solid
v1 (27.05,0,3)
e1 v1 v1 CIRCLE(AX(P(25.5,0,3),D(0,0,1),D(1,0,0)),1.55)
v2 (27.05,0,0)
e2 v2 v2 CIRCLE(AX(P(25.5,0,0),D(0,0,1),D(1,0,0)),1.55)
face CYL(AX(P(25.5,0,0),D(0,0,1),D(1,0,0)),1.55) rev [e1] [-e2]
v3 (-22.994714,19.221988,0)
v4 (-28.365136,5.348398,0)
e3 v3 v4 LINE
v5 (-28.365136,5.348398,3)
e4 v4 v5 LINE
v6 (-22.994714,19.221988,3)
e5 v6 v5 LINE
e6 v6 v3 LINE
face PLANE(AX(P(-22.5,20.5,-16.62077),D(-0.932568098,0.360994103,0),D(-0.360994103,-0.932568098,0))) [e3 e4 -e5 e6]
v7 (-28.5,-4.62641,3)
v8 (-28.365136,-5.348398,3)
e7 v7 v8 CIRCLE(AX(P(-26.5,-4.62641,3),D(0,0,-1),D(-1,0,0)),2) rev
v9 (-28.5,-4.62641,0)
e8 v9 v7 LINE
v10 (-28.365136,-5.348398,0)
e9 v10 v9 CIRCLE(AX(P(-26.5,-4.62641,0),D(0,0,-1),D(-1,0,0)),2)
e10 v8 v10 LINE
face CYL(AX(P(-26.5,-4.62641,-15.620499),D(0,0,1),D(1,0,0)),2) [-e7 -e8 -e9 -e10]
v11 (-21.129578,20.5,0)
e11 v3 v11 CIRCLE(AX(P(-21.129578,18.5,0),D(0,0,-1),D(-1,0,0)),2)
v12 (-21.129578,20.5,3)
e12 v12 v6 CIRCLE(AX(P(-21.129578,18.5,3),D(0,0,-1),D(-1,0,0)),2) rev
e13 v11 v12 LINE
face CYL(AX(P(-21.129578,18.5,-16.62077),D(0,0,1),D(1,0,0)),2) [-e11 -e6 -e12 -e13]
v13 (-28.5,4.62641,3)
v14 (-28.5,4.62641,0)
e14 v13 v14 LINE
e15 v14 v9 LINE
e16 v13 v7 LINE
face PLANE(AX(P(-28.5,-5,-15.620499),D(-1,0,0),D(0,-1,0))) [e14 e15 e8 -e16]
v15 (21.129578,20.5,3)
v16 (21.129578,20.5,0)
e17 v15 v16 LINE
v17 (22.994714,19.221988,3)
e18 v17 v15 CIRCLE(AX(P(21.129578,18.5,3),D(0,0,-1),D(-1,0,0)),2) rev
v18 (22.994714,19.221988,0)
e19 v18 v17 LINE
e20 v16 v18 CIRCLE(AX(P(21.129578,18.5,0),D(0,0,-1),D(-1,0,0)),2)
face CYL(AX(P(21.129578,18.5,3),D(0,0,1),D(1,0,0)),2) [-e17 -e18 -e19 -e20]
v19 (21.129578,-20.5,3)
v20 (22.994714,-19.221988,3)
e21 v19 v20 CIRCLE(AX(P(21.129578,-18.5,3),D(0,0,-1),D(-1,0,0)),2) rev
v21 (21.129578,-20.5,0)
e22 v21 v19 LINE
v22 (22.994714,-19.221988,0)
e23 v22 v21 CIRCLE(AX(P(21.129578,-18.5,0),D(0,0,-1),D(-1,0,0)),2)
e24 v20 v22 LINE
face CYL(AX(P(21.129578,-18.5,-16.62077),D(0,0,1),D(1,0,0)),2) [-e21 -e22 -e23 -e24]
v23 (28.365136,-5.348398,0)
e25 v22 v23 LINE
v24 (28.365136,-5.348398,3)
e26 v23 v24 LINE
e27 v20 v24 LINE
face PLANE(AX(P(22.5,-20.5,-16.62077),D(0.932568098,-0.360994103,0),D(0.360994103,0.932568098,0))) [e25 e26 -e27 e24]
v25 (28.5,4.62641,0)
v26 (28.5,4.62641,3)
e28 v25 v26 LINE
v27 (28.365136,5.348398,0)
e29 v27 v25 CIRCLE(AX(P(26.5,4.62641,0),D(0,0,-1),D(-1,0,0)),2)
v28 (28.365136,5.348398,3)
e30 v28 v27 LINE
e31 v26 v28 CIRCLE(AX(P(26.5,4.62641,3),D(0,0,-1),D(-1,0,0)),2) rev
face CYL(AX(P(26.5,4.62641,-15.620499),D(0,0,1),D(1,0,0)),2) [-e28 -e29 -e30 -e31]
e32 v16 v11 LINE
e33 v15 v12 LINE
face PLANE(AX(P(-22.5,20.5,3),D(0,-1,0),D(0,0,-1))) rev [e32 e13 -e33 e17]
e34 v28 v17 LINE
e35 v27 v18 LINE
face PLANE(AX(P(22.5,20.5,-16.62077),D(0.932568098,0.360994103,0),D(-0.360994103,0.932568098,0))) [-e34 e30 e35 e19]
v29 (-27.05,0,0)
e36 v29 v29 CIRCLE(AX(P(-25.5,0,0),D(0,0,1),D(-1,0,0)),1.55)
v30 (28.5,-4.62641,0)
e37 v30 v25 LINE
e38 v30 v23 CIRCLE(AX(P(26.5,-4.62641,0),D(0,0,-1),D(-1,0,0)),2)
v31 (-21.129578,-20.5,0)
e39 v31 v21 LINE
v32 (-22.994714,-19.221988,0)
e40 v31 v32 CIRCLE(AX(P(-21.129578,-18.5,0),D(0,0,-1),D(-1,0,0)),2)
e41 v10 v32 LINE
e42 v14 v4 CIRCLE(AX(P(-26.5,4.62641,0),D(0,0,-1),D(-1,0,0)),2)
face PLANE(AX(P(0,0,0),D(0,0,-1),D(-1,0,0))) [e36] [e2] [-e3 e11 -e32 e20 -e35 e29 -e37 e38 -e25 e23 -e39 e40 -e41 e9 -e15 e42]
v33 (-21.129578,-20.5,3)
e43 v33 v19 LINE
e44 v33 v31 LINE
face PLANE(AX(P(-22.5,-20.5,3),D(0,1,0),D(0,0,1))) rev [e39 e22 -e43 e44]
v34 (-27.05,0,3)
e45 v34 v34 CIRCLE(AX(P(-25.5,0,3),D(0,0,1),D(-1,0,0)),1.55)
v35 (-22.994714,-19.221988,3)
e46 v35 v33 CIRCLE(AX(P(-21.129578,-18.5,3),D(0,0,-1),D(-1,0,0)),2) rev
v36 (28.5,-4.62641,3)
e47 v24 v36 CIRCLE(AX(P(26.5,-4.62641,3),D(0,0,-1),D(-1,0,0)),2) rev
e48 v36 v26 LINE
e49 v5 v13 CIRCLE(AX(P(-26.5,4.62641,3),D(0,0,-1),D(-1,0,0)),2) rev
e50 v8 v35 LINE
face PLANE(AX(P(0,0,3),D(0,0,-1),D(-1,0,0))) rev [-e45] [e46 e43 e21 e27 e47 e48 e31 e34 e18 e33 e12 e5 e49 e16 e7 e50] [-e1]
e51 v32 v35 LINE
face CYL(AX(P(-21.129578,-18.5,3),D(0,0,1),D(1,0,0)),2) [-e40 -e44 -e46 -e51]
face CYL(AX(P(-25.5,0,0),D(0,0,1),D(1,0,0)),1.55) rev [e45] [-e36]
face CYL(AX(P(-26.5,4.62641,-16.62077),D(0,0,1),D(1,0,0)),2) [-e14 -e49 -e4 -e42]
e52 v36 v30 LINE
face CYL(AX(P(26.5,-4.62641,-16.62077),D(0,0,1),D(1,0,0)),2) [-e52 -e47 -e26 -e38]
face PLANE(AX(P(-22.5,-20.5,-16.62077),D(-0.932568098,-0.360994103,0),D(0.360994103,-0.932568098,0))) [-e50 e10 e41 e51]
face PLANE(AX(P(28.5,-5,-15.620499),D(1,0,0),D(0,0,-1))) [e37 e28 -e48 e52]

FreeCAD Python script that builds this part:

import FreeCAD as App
import Part
import Sketcher
Q = App.Units.Quantity


def edges_at(feature, points):
    """Names of the edges that pass closest to the given points."""
    edges = feature.Shape.Edges
    near = lambda p: min(range(len(edges)), key=lambda i: edges[i].distToShape(Part.Vertex(*p))[0])
    return sorted({f"Edge{near(p) + 1}" for p in points})


def add_polygon(sketch, points):
    """Adds a closed chain of lines whose ends are joined by coincident constraints."""
    first, n = sketch.GeometryCount, len(points)
    for a, b in zip(points, points[1:] + points[:1]):
        sketch.addGeometry(Part.LineSegment(App.Vector(*a, 0), App.Vector(*b, 0)), False)
    for i in range(n):
        sketch.addConstraint(Sketcher.Constraint("Coincident", first + i, 2, first + (i + 1) % n, 1))

doc = App.newDocument("Part")
body = doc.addObject("PartDesign::Body", "Body")

sketch1 = body.newObject("Sketcher::SketchObject", "Sketch")
sketch1.AttachmentSupport = (doc.getObject("XY_Plane"), [""])
sketch1.MapMode = "FlatFace"
add_polygon(sketch1, [(-22, 20), (-22, -20), (22, -20), (22, 20)])
sketch1.addConstraint(Sketcher.Constraint("Vertical", 0))
sketch1.addConstraint(Sketcher.Constraint("Horizontal", 1))
sketch1.addConstraint(Sketcher.Constraint("Vertical", 2))
sketch1.addConstraint(Sketcher.Constraint("Horizontal", 3))
sketch1.addConstraint(Sketcher.Constraint("Symmetric", 0, 2, 2, 2, -1, 1))
sketch1.addConstraint(Sketcher.Constraint("DistanceX", 1, 1, 1, 2, Q("45 mm")))
sketch1.addConstraint(Sketcher.Constraint("DistanceY", 0, 2, 0, 1, Q("41 mm")))
pad1 = body.newObject("PartDesign::Pad", "Pad")
pad1.Profile = sketch1
pad1.Length = 3

sketch2 = body.newObject("Sketcher::SketchObject", "Sketch001")
sketch2.AttachmentSupport = (doc.getObject("XY_Plane"), [""])
sketch2.MapMode = "FlatFace"
sketch2.AttachmentOffset = App.Placement(App.Vector(0, 0, 3), App.Rotation())
add_polygon(sketch2, [(16, 5), (16, -5), (28, -5), (28, 5)])
add_polygon(sketch2, [(-28, 5), (-28, -5), (-16, -5), (-16, 5)])
sketch2.addConstraint(Sketcher.Constraint("Vertical", 0))
sketch2.addConstraint(Sketcher.Constraint("Horizontal", 1))
sketch2.addConstraint(Sketcher.Constraint("Vertical", 2))
sketch2.addConstraint(Sketcher.Constraint("Horizontal", 3))
sketch2.addConstraint(Sketcher.Constraint("Vertical", 4))
sketch2.addConstraint(Sketcher.Constraint("Horizontal", 5))
sketch2.addConstraint(Sketcher.Constraint("Vertical", 6))
sketch2.addConstraint(Sketcher.Constraint("Horizontal", 7))
sketch2.addConstraint(Sketcher.Constraint("Symmetric", 2, 2, 4, 2, -1, 1))
sketch2.addConstraint(Sketcher.Constraint("Symmetric", 0, 2, 6, 2, -1, 1))
sketch2.addConstraint(Sketcher.Constraint("Horizontal", 1, 2, 4, 2))
sketch2.addConstraint(Sketcher.Constraint("DistanceX", 1, 1, 1, 2, Q("12 mm")))
sketch2.addConstraint(Sketcher.Constraint("DistanceY", 0, 2, 0, 1, Q("10 mm")))
sketch2.addConstraint(Sketcher.Constraint("DistanceX", 4, 2, 0, 2, Q("45 mm")))
pad2 = body.newObject("PartDesign::Pad", "Pad001")
pad2.Profile = sketch2
pad2.Length = 3
pad2.Reversed = True

sketch3 = body.newObject("Sketcher::SketchObject", "Sketch002")
sketch3.AttachmentSupport = (doc.getObject("XY_Plane"), [""])
sketch3.MapMode = "FlatFace"
sketch3.AttachmentOffset = App.Placement(App.Vector(0, 0, 3), App.Rotation())
add_polygon(sketch3, [(-22, 20), (-28, 5), (-22, 5)])
add_polygon(sketch3, [(22, 20), (22, 5), (28, 5)])
add_polygon(sketch3, [(-22, -5), (-28, -5), (-22, -20)])
add_polygon(sketch3, [(22, -20), (28, -5), (22, -5)])
sketch3.addConstraint(Sketcher.Constraint("Horizontal", 1))
sketch3.addConstraint(Sketcher.Constraint("Vertical", 2))
sketch3.addConstraint(Sketcher.Constraint("Vertical", 3))
sketch3.addConstraint(Sketcher.Constraint("Horizontal", 4))
sketch3.addConstraint(Sketcher.Constraint("Horizontal", 6))
sketch3.addConstraint(Sketcher.Constraint("Vertical", 8))
sketch3.addConstraint(Sketcher.Constraint("Horizontal", 10))
sketch3.addConstraint(Sketcher.Constraint("Vertical", 11))
sketch3.addConstraint(Sketcher.Constraint("Symmetric", 4, 2, 6, 2, -1, 1))
sketch3.addConstraint(Sketcher.Constraint("Symmetric", 5, 2, 7, 2, -1, 1))
sketch3.addConstraint(Sketcher.Constraint("Symmetric", 0, 2, 9, 2, -1, 1))
sketch3.addConstraint(Sketcher.Constraint("Symmetric", 2, 2, 11, 2, -1, 1))
sketch3.addConstraint(Sketcher.Constraint("Symmetric", 1, 2, 3, 2, -2))
sketch3.addConstraint(Sketcher.Constraint("Horizontal", 2, 2, 5, 2))
sketch3.addConstraint(Sketcher.Constraint("Vertical", 0, 2, 6, 2))
sketch3.addConstraint(Sketcher.Constraint("DistanceX", 1, 1, 1, 2, Q("6 mm")))
sketch3.addConstraint(Sketcher.Constraint("DistanceY", 2, 1, 2, 2, Q("15.5 mm")))
sketch3.addConstraint(Sketcher.Constraint("DistanceY", -1, 1, 0, 2, Q("5 mm")))
sketch3.addConstraint(Sketcher.Constraint("DistanceX", 1, 2, 3, 2, Q("45 mm")))
pad3 = body.newObject("PartDesign::Pad", "Pad002")
pad3.Profile = sketch3
pad3.Length = 3
pad3.Reversed = True

sketch4 = body.newObject("Sketcher::SketchObject", "Sketch003")
sketch4.AttachmentSupport = (doc.getObject("XY_Plane"), [""])
sketch4.MapMode = "FlatFace"
sketch4.AttachmentOffset = App.Placement(App.Vector(0, 0, 3), App.Rotation())
sketch4.addGeometry(Part.Circle(App.Vector(25.5, 0, 0), App.Vector(0, 0, 1), 1.6), False)
sketch4.addGeometry(Part.Circle(App.Vector(-25.5, 0, 0), App.Vector(0, 0, 1), 1.6), False)
sketch4.addConstraint(Sketcher.Constraint("Equal", 0, 1))
sketch4.addConstraint(Sketcher.Constraint("Symmetric", 0, 3, 1, 3, -1, 1))
sketch4.addConstraint(Sketcher.Constraint("PointOnObject", 0, 3, -1))
sketch4.addConstraint(Sketcher.Constraint("Diameter", 0, Q("3.1 mm")))
sketch4.addConstraint(Sketcher.Constraint("DistanceX", 1, 3, 0, 3, Q("51 mm")))
pocket1 = body.newObject("PartDesign::Pocket", "Pocket")
pocket1.Profile = sketch4
pocket1.Length = 3
doc.recompute()

fillet = body.newObject("PartDesign::Fillet", "Fillet")
fillet.Base = (pocket1, edges_at(pocket1, [
    (28.5, -5, 1.5),
    (28.5, 5, 1.5),
    (-28.5, 5, 1.5),
    (-28.5, -5, 1.5),
    (22.5, -20.5, 1.5),
    (-22.5, -20.5, 1.5),
    (-22.5, 20.5, 1.5),
    (22.5, 20.5, 1.5),
]))
fillet.Radius = 2

doc.recompute()
